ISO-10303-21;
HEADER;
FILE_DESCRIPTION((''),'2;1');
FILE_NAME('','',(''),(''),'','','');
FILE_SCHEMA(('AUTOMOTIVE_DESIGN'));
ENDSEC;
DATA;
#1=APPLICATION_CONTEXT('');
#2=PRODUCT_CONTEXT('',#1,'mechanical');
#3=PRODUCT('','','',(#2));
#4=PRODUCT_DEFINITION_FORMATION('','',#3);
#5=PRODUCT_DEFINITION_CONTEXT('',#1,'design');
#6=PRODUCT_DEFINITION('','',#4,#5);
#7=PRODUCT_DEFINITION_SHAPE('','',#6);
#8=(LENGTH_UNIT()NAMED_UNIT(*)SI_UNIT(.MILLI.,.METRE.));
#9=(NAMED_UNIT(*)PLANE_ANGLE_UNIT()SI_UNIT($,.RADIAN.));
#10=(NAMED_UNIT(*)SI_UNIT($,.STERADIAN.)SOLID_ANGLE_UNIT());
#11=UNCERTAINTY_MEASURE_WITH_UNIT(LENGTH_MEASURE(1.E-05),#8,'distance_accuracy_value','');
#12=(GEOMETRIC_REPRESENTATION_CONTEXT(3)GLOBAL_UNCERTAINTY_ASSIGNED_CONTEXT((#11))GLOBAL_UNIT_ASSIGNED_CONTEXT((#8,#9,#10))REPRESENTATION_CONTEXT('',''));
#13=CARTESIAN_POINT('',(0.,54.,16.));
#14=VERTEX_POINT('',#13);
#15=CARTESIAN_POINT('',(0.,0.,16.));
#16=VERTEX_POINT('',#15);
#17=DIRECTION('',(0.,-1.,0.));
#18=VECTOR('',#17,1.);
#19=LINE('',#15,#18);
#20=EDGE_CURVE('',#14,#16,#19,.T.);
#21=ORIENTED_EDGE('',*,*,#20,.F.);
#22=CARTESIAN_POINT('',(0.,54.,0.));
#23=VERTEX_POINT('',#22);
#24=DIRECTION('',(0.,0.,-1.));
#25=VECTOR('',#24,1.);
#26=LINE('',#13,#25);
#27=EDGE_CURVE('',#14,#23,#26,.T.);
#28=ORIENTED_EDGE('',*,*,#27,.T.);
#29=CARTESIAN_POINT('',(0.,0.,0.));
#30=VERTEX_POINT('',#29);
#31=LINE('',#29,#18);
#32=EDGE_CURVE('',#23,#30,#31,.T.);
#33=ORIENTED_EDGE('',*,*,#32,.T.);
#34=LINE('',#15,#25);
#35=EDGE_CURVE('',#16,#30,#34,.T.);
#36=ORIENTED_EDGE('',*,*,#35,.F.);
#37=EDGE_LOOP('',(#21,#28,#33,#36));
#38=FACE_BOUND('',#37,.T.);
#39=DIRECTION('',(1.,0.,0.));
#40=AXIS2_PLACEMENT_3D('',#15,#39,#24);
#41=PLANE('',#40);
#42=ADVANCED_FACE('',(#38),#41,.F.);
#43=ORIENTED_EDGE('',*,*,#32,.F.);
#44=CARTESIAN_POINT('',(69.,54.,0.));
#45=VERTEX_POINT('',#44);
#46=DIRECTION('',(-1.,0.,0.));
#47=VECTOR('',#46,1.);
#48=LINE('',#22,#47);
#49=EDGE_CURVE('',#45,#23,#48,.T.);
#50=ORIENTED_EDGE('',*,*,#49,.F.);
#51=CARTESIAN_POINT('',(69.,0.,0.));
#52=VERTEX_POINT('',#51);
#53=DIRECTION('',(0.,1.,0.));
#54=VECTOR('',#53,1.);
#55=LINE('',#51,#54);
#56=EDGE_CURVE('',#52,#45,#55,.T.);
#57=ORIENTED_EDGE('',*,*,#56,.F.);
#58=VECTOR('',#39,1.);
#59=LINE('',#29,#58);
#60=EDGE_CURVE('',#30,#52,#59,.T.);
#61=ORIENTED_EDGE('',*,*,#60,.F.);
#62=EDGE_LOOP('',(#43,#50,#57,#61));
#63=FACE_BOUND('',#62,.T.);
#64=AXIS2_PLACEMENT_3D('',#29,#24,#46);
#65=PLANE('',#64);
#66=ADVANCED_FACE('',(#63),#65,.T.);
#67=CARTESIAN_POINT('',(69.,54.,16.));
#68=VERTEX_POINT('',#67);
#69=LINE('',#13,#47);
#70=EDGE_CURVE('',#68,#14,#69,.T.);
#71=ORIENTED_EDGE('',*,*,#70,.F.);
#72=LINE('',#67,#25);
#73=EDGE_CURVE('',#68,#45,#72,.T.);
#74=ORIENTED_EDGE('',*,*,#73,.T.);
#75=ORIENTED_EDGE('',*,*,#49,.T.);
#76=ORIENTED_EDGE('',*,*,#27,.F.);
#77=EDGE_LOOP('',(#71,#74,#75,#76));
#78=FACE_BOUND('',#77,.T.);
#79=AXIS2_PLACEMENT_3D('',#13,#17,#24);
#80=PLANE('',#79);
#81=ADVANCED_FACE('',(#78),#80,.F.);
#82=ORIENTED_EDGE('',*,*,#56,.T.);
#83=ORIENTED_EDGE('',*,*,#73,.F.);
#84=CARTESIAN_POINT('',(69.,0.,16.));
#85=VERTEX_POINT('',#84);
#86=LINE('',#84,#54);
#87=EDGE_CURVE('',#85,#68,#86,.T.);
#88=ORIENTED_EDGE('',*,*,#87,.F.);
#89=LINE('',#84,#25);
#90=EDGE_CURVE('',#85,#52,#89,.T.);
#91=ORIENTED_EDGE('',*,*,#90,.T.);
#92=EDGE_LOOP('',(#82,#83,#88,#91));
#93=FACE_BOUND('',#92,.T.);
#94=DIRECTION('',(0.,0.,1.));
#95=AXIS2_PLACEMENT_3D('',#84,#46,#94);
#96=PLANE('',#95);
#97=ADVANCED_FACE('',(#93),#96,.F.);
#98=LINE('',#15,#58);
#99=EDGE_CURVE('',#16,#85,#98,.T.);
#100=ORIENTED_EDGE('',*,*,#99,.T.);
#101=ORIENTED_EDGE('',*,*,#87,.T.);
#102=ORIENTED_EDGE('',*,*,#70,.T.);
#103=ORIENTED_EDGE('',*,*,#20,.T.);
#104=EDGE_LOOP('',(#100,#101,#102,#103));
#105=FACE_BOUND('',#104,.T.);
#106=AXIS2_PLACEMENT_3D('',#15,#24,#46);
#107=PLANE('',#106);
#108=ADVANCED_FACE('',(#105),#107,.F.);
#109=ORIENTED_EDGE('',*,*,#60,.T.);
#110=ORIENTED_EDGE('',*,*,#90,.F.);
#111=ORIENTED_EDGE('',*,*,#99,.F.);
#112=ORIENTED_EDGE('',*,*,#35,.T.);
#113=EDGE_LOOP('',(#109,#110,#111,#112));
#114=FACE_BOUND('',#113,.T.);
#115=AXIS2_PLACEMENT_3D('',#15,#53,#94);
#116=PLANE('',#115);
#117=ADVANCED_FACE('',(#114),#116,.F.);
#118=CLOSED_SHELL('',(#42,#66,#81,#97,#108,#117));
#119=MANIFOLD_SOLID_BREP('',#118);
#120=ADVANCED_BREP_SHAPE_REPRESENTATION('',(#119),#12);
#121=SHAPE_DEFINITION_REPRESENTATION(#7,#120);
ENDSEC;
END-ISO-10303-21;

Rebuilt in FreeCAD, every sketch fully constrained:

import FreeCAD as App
import Part
import Sketcher
from FreeCAD import Vector
Q = App.Units.Quantity

doc = App.newDocument("Part")
params = doc.addObject("Spreadsheet::Sheet", "Params")
for row, (alias, value) in enumerate([
    ("sketch1_width", "69 mm"),
    ("sketch1_height", "54 mm"),
    ("pad1_length", "16 mm"),
], start=1):
    params.set(f"A{row}", alias)
    params.set(f"B{row}", "=" + value)
    params.setAlias(f"B{row}", alias)

body = doc.addObject("PartDesign::Body", "Body")

# Sketch on XY plane
sketch1 = body.newObject("Sketcher::SketchObject", "Sketch")
sketch1.AttachmentSupport = (doc.getObject("XY_Plane"), [""])
sketch1.MapMode = "FlatFace"
sketch1.addGeometry([
    Part.LineSegment(Vector(0, 54, 0), Vector(0, 0, 0)),
    Part.LineSegment(Vector(0, 0, 0), Vector(69, 0, 0)),
    Part.LineSegment(Vector(69, 0, 0), Vector(69, 54, 0)),
    Part.LineSegment(Vector(69, 54, 0), Vector(0, 54, 0)),
], False)
sketch1.addConstraint([
    Sketcher.Constraint("Coincident", 0, 2, 1, 1),
    Sketcher.Constraint("Coincident", 1, 2, 2, 1),
    Sketcher.Constraint("Coincident", 2, 2, 3, 1),
    Sketcher.Constraint("Coincident", 3, 2, 0, 1),
    Sketcher.Constraint("Vertical", 0),
    Sketcher.Constraint("Horizontal", 1),
    Sketcher.Constraint("Vertical", 2),
    Sketcher.Constraint("Horizontal", 3),
    Sketcher.Constraint("Coincident", 0, 2, -1, 1),
    Sketcher.Constraint("DistanceX", 1, 1, 1, 2, Q("69 mm")),
    Sketcher.Constraint("DistanceY", 0, 2, 0, 1, Q("54 mm")),
])
sketch1.setExpression("Constraints[9]", "Params.sketch1_width")
sketch1.setExpression("Constraints[10]", "Params.sketch1_height")
pad1 = body.newObject("PartDesign::Pad", "Pad")
pad1.Profile = sketch1
pad1.setExpression("Length", "Params.pad1_length")

doc.recompute()
